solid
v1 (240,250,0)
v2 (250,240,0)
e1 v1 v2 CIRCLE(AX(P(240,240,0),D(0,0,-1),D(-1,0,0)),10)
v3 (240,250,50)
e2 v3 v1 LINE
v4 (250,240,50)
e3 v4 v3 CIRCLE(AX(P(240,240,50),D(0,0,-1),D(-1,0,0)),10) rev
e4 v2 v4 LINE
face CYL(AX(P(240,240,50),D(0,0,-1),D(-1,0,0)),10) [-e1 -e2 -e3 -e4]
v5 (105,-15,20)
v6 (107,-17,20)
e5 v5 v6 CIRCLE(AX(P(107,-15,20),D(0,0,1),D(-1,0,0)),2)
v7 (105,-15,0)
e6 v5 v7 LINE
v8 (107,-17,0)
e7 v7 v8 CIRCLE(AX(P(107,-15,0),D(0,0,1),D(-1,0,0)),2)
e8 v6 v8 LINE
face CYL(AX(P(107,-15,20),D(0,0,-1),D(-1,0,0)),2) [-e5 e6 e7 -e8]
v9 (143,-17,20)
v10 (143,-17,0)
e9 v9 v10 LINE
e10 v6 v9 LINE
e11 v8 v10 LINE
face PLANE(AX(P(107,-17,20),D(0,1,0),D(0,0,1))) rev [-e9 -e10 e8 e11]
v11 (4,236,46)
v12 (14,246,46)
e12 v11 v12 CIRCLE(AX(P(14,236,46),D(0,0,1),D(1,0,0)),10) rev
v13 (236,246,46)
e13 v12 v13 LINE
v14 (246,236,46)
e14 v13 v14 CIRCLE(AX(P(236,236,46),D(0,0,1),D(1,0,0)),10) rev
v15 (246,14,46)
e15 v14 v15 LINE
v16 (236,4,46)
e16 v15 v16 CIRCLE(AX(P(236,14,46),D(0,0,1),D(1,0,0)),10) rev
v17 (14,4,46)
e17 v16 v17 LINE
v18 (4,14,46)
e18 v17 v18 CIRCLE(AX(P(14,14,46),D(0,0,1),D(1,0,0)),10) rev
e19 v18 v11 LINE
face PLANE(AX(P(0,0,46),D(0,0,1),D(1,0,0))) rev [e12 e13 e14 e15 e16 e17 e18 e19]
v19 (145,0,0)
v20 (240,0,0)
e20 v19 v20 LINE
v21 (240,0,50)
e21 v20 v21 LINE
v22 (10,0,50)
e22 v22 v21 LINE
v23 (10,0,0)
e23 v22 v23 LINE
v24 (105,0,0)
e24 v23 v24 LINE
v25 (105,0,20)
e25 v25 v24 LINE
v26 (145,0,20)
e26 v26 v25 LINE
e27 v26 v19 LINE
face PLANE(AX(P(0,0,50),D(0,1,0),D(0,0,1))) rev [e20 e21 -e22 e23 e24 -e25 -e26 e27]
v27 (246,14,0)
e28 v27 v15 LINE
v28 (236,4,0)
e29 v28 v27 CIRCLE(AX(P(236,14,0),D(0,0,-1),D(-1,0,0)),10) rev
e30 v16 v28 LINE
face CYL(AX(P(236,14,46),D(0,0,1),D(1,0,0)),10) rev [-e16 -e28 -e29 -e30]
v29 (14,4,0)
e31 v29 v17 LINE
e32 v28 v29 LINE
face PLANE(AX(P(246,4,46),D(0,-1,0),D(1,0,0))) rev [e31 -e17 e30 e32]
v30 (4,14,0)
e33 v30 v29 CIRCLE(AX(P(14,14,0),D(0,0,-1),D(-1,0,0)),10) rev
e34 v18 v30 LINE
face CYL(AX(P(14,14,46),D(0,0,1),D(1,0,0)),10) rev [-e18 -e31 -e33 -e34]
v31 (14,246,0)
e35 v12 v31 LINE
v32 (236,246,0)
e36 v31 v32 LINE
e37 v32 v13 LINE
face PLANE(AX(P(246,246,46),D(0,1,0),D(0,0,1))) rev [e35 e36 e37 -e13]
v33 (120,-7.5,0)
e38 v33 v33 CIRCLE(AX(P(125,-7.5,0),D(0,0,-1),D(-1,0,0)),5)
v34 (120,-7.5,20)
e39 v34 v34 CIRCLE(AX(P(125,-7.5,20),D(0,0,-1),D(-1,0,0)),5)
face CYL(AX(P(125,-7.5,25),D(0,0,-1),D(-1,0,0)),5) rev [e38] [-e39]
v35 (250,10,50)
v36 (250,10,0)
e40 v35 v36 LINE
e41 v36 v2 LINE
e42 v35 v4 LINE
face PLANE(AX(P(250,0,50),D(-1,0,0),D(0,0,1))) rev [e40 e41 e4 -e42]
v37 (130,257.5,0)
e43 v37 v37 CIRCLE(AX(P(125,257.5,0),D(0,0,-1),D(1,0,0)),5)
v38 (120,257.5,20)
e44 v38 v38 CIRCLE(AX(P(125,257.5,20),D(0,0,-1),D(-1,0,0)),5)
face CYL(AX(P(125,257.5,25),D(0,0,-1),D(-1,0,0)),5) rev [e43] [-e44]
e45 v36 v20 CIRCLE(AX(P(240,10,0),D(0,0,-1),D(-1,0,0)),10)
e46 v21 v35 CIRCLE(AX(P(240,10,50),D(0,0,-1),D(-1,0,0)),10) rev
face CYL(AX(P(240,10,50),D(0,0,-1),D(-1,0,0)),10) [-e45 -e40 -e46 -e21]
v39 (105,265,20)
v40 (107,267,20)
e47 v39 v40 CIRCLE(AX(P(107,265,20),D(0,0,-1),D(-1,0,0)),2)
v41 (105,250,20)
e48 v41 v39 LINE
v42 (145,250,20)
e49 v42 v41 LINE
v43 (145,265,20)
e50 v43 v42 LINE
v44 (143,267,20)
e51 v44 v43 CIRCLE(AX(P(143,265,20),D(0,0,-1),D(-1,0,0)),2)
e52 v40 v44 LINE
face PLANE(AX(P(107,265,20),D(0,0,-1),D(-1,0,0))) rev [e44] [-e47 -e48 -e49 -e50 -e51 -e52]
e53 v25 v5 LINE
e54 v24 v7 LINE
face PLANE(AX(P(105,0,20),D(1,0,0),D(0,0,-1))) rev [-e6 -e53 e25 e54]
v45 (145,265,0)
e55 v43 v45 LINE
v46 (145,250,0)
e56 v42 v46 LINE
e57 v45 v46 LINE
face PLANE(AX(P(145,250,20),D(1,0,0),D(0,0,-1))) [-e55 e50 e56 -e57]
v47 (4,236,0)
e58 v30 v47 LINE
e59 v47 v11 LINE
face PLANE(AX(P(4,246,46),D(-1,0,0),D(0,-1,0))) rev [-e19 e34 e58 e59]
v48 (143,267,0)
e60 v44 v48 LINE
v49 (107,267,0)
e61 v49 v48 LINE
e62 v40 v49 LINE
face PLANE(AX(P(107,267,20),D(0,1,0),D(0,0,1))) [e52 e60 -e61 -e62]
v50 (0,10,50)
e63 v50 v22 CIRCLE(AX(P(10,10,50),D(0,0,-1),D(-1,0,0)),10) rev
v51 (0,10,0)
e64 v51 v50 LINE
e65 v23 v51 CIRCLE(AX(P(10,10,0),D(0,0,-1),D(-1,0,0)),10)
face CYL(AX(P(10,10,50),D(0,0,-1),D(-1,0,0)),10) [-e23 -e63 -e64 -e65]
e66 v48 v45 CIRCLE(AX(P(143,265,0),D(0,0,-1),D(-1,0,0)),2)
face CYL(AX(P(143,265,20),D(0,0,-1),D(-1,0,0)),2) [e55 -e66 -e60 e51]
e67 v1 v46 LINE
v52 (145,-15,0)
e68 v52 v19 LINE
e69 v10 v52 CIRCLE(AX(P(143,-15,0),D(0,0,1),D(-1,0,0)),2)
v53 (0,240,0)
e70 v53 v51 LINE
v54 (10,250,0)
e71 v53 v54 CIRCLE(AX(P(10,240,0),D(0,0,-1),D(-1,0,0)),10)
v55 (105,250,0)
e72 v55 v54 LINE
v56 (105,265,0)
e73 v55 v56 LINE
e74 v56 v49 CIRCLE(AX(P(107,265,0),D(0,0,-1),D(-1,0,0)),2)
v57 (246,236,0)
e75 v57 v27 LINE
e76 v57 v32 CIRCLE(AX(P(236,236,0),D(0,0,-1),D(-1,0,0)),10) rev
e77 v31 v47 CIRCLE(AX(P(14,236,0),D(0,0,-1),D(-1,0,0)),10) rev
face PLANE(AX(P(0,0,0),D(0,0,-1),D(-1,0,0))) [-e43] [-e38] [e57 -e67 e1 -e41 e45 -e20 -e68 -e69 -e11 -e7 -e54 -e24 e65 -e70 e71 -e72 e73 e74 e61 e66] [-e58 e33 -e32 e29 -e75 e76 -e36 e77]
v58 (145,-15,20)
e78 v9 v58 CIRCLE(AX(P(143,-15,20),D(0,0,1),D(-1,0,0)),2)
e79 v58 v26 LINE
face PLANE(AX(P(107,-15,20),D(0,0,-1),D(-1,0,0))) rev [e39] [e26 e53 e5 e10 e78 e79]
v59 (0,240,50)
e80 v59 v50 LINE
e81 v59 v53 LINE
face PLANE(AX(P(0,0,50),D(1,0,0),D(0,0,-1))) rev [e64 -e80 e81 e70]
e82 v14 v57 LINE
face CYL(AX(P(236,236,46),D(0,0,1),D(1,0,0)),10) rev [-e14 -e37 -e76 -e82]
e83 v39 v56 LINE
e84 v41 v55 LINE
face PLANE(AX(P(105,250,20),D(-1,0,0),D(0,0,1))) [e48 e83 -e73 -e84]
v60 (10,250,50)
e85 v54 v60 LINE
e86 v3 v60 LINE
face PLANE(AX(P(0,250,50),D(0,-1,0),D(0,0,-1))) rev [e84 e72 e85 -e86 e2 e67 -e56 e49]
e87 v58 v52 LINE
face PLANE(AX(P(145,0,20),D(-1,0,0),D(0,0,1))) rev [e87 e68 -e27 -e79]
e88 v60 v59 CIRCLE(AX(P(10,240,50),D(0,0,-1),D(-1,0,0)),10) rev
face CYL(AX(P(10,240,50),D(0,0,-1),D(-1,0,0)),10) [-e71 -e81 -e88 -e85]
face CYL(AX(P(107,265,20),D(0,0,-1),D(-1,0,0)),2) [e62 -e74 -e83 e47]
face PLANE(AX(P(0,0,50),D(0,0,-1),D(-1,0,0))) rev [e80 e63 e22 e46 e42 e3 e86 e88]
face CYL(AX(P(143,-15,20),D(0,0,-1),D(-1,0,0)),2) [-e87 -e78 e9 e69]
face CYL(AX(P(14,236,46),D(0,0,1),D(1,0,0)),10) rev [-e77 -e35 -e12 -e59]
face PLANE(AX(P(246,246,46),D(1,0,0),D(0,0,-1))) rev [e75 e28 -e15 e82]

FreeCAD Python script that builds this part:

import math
import FreeCAD as App
import Part
import Sketcher


def edges_at(feature, points):
    """Names of the edges that pass closest to the given points."""
    edges = feature.Shape.Edges
    near = lambda p: min(range(len(edges)), key=lambda i: edges[i].distToShape(Part.Vertex(*p))[0])
    return sorted({f"Edge{near(p) + 1}" for p in points})


def add_polygon(sketch, points):
    """Adds a closed chain of lines whose ends are joined by coincident constraints."""
    first, n = sketch.GeometryCount, len(points)
    for a, b in zip(points, points[1:] + points[:1]):
        sketch.addGeometry(Part.LineSegment(App.Vector(*a, 0), App.Vector(*b, 0)), False)
    for i in range(n):
        sketch.addConstraint(Sketcher.Constraint("Coincident", first + i, 2, first + (i + 1) % n, 1))

doc = App.newDocument("Part")
params = doc.addObject("Spreadsheet::Sheet", "Params")
for row, (alias, value) in enumerate([
    ("sketch1_width", "250 mm"),
    ("pad1_length", "50 mm"),
    ("sketch2_radius", "2 mm"),
    ("sketch2_width", "36 mm"),
    ("sketch2_height", "15 mm"),
    ("pad2_length", "20 mm"),
    ("sketch3_diameter", "10 mm"),
    ("pocket1_length", "25 mm"),
    ("sketch4_width", "242 mm"),
    ("pocket2_length", "46 mm"),
    ("fillet_radius", "10 mm"),
    ("fillet2_radius", "10 mm"),
], start=1):
    params.set(f"A{row}", alias)
    params.set(f"B{row}", "=" + value)
    params.setAlias(f"B{row}", alias)

body = doc.addObject("PartDesign::Body", "Body")

sketch1 = doc.addObject("Sketcher::SketchObject", "Sketch")
body.addObject(sketch1)
sketch1.AttachmentSupport = (doc.XY_Plane, [""])
sketch1.MapMode = "FlatFace"
add_polygon(sketch1, [(0, 250), (0, 0), (250, 0), (250, 250)])
sketch1.addConstraint(Sketcher.Constraint("Vertical", 0))
sketch1.addConstraint(Sketcher.Constraint("Horizontal", 1))
sketch1.addConstraint(Sketcher.Constraint("Vertical", 2))
sketch1.addConstraint(Sketcher.Constraint("Horizontal", 3))
sketch1.addConstraint(Sketcher.Constraint("Coincident", 0, 2, -1, 1))
sketch1.addConstraint(Sketcher.Constraint("Equal", 3, 0))
sketch1.addConstraint(Sketcher.Constraint("DistanceX", 1, 1, 1, 2, 250.0))
sketch1.setExpression("Constraints[10]", "Params.sketch1_width")
pad1 = doc.addObject("PartDesign::Pad", "Pad")
body.addObject(pad1)
pad1.Profile = sketch1
pad1.setExpression("Length", "Params.pad1_length")

sketch2 = doc.addObject("Sketcher::SketchObject", "Sketch001")
body.addObject(sketch2)
sketch2.AttachmentSupport = (doc.XY_Plane, [""])
sketch2.MapMode = "FlatFace"
sketch2.addGeometry(Part.LineSegment(App.Vector(105, 0, 0), App.Vector(105, -15, 0)), False)
sketch2.addGeometry(Part.ArcOfCircle(Part.Circle(App.Vector(107, -15, 0), App.Vector(0, 0, 1), 2), math.radians(-180), math.radians(-90)), False)
sketch2.addGeometry(Part.LineSegment(App.Vector(107, -17, 0), App.Vector(143, -17, 0)), False)
sketch2.addGeometry(Part.ArcOfCircle(Part.Circle(App.Vector(143, -15, 0), App.Vector(0, 0, 1), 2), math.radians(-90), math.radians(0)), False)
sketch2.addGeometry(Part.LineSegment(App.Vector(145, -15, 0), App.Vector(145, 0, 0)), False)
sketch2.addGeometry(Part.LineSegment(App.Vector(145, 0, 0), App.Vector(105, 0, 0)), False)
sketch2.addConstraint(Sketcher.Constraint("Tangent", 0, 2, 1, 1))
sketch2.addConstraint(Sketcher.Constraint("Tangent", 1, 2, 2, 1))
sketch2.addConstraint(Sketcher.Constraint("Tangent", 2, 2, 3, 1))
sketch2.addConstraint(Sketcher.Constraint("Tangent", 3, 2, 4, 1))
sketch2.addConstraint(Sketcher.Constraint("Coincident", 4, 2, 5, 1))
sketch2.addConstraint(Sketcher.Constraint("Coincident", 5, 2, 0, 1))
sketch2.addConstraint(Sketcher.Constraint("Vertical", 0))
sketch2.addConstraint(Sketcher.Constraint("Horizontal", 2))
sketch2.addConstraint(Sketcher.Constraint("Vertical", 4))
sketch2.addConstraint(Sketcher.Constraint("Horizontal", 5))
sketch2.addConstraint(Sketcher.Constraint("Equal", 1, 3))
sketch2.addConstraint(Sketcher.Constraint("PointOnObject", 4, 2, -1))
sketch2.addConstraint(Sketcher.Constraint("Radius", 1, 2.0))
sketch2.addConstraint(Sketcher.Constraint("DistanceX", 2, 1, 2, 2, 36.0))
sketch2.addConstraint(Sketcher.Constraint("DistanceY", 0, 2, 0, 1, 15.0))
sketch2.addConstraint(Sketcher.Constraint("DistanceX", -1, 1, 1, 3, 107.0))
sketch2.setExpression("Constraints[12]", "Params.sketch2_radius")
sketch2.setExpression("Constraints[13]", "Params.sketch2_width")
sketch2.setExpression("Constraints[14]", "Params.sketch2_height")
pad2 = doc.addObject("PartDesign::Pad", "Pad001")
body.addObject(pad2)
pad2.Profile = sketch2
pad2.setExpression("Length", "Params.pad2_length")
doc.recompute()

datumplane = doc.addObject("PartDesign::Plane", "DatumPlane")
body.addObject(datumplane)
datumplane.AttachmentSupport = (doc.XZ_Plane, [""])
datumplane.MapMode = "FlatFace"
datumplane.AttachmentOffset = App.Placement(App.Vector(0, 0, -125), App.Rotation())
mirrored = doc.addObject("PartDesign::Mirrored", "Mirrored")
body.addObject(mirrored)
mirrored.Originals = [pad2]
mirrored.MirrorPlane = (datumplane, [""])
body.Tip = mirrored

sketch3 = doc.addObject("Sketcher::SketchObject", "Sketch002")
body.addObject(sketch3)
sketch3.AttachmentSupport = (doc.XY_Plane, [""])
sketch3.MapMode = "FlatFace"
sketch3.addGeometry(Part.Circle(App.Vector(125, -7.5, 0), App.Vector(0, 0, 1), 5), False)
sketch3.addGeometry(Part.Circle(App.Vector(125, 257.5, 0), App.Vector(0, 0, 1), 5), False)
sketch3.addConstraint(Sketcher.Constraint("Equal", 0, 1))
sketch3.addConstraint(Sketcher.Constraint("Vertical", 0, 3, 1, 3))
sketch3.addConstraint(Sketcher.Constraint("Diameter", 0, 10.0))
sketch3.addConstraint(Sketcher.Constraint("DistanceX", -1, 1, 0, 3, 125.0))
sketch3.addConstraint(Sketcher.Constraint("DistanceY", 0, 3, 1, 3, 265.0))
sketch3.addConstraint(Sketcher.Constraint("DistanceY", 0, 3, -1, 1, 7.5))
sketch3.setExpression("Constraints[2]", "Params.sketch3_diameter")
pocket1 = doc.addObject("PartDesign::Pocket", "Pocket")
body.addObject(pocket1)
pocket1.Profile = sketch3
pocket1.setExpression("Length", "Params.pocket1_length")
pocket1.Reversed = True

sketch4 = doc.addObject("Sketcher::SketchObject", "Sketch003")
body.addObject(sketch4)
sketch4.AttachmentSupport = (doc.XY_Plane, [""])
sketch4.MapMode = "FlatFace"
add_polygon(sketch4, [(246, 246), (246, 4), (4, 4), (4, 246)])
sketch4.addConstraint(Sketcher.Constraint("Vertical", 0))
sketch4.addConstraint(Sketcher.Constraint("Horizontal", 1))
sketch4.addConstraint(Sketcher.Constraint("Vertical", 2))
sketch4.addConstraint(Sketcher.Constraint("Horizontal", 3))
sketch4.addConstraint(Sketcher.Constraint("Equal", 3, 0))
sketch4.addConstraint(Sketcher.Constraint("DistanceX", 1, 2, 1, 1, 242.0))
sketch4.addConstraint(Sketcher.Constraint("DistanceX", -1, 1, 0, 2, 246.0))
sketch4.addConstraint(Sketcher.Constraint("DistanceY", -1, 1, 0, 2, 4.0))
sketch4.setExpression("Constraints[9]", "Params.sketch4_width")
pocket2 = doc.addObject("PartDesign::Pocket", "Pocket001")
body.addObject(pocket2)
pocket2.Profile = sketch4
pocket2.setExpression("Length", "Params.pocket2_length")
pocket2.Reversed = True
doc.recompute()

fillet = doc.addObject("PartDesign::Fillet", "Fillet")
body.addObject(fillet)
fillet.Base = (pocket2, edges_at(pocket2, [
    (0, 250, 25),
    (250, 250, 25),
    (250, 0, 25),
    (0, 0, 25),
]))
fillet.setExpression("Radius", "Params.fillet_radius")
doc.recompute()

fillet2 = doc.addObject("PartDesign::Fillet", "Fillet001")
body.addObject(fillet2)
fillet2.Base = (fillet, edges_at(fillet, [
    (246, 246, 23),
    (4, 246, 23),
    (4, 4, 23),
    (246, 4, 23),
]))
fillet2.setExpression("Radius", "Params.fillet2_radius")

doc.recompute()
